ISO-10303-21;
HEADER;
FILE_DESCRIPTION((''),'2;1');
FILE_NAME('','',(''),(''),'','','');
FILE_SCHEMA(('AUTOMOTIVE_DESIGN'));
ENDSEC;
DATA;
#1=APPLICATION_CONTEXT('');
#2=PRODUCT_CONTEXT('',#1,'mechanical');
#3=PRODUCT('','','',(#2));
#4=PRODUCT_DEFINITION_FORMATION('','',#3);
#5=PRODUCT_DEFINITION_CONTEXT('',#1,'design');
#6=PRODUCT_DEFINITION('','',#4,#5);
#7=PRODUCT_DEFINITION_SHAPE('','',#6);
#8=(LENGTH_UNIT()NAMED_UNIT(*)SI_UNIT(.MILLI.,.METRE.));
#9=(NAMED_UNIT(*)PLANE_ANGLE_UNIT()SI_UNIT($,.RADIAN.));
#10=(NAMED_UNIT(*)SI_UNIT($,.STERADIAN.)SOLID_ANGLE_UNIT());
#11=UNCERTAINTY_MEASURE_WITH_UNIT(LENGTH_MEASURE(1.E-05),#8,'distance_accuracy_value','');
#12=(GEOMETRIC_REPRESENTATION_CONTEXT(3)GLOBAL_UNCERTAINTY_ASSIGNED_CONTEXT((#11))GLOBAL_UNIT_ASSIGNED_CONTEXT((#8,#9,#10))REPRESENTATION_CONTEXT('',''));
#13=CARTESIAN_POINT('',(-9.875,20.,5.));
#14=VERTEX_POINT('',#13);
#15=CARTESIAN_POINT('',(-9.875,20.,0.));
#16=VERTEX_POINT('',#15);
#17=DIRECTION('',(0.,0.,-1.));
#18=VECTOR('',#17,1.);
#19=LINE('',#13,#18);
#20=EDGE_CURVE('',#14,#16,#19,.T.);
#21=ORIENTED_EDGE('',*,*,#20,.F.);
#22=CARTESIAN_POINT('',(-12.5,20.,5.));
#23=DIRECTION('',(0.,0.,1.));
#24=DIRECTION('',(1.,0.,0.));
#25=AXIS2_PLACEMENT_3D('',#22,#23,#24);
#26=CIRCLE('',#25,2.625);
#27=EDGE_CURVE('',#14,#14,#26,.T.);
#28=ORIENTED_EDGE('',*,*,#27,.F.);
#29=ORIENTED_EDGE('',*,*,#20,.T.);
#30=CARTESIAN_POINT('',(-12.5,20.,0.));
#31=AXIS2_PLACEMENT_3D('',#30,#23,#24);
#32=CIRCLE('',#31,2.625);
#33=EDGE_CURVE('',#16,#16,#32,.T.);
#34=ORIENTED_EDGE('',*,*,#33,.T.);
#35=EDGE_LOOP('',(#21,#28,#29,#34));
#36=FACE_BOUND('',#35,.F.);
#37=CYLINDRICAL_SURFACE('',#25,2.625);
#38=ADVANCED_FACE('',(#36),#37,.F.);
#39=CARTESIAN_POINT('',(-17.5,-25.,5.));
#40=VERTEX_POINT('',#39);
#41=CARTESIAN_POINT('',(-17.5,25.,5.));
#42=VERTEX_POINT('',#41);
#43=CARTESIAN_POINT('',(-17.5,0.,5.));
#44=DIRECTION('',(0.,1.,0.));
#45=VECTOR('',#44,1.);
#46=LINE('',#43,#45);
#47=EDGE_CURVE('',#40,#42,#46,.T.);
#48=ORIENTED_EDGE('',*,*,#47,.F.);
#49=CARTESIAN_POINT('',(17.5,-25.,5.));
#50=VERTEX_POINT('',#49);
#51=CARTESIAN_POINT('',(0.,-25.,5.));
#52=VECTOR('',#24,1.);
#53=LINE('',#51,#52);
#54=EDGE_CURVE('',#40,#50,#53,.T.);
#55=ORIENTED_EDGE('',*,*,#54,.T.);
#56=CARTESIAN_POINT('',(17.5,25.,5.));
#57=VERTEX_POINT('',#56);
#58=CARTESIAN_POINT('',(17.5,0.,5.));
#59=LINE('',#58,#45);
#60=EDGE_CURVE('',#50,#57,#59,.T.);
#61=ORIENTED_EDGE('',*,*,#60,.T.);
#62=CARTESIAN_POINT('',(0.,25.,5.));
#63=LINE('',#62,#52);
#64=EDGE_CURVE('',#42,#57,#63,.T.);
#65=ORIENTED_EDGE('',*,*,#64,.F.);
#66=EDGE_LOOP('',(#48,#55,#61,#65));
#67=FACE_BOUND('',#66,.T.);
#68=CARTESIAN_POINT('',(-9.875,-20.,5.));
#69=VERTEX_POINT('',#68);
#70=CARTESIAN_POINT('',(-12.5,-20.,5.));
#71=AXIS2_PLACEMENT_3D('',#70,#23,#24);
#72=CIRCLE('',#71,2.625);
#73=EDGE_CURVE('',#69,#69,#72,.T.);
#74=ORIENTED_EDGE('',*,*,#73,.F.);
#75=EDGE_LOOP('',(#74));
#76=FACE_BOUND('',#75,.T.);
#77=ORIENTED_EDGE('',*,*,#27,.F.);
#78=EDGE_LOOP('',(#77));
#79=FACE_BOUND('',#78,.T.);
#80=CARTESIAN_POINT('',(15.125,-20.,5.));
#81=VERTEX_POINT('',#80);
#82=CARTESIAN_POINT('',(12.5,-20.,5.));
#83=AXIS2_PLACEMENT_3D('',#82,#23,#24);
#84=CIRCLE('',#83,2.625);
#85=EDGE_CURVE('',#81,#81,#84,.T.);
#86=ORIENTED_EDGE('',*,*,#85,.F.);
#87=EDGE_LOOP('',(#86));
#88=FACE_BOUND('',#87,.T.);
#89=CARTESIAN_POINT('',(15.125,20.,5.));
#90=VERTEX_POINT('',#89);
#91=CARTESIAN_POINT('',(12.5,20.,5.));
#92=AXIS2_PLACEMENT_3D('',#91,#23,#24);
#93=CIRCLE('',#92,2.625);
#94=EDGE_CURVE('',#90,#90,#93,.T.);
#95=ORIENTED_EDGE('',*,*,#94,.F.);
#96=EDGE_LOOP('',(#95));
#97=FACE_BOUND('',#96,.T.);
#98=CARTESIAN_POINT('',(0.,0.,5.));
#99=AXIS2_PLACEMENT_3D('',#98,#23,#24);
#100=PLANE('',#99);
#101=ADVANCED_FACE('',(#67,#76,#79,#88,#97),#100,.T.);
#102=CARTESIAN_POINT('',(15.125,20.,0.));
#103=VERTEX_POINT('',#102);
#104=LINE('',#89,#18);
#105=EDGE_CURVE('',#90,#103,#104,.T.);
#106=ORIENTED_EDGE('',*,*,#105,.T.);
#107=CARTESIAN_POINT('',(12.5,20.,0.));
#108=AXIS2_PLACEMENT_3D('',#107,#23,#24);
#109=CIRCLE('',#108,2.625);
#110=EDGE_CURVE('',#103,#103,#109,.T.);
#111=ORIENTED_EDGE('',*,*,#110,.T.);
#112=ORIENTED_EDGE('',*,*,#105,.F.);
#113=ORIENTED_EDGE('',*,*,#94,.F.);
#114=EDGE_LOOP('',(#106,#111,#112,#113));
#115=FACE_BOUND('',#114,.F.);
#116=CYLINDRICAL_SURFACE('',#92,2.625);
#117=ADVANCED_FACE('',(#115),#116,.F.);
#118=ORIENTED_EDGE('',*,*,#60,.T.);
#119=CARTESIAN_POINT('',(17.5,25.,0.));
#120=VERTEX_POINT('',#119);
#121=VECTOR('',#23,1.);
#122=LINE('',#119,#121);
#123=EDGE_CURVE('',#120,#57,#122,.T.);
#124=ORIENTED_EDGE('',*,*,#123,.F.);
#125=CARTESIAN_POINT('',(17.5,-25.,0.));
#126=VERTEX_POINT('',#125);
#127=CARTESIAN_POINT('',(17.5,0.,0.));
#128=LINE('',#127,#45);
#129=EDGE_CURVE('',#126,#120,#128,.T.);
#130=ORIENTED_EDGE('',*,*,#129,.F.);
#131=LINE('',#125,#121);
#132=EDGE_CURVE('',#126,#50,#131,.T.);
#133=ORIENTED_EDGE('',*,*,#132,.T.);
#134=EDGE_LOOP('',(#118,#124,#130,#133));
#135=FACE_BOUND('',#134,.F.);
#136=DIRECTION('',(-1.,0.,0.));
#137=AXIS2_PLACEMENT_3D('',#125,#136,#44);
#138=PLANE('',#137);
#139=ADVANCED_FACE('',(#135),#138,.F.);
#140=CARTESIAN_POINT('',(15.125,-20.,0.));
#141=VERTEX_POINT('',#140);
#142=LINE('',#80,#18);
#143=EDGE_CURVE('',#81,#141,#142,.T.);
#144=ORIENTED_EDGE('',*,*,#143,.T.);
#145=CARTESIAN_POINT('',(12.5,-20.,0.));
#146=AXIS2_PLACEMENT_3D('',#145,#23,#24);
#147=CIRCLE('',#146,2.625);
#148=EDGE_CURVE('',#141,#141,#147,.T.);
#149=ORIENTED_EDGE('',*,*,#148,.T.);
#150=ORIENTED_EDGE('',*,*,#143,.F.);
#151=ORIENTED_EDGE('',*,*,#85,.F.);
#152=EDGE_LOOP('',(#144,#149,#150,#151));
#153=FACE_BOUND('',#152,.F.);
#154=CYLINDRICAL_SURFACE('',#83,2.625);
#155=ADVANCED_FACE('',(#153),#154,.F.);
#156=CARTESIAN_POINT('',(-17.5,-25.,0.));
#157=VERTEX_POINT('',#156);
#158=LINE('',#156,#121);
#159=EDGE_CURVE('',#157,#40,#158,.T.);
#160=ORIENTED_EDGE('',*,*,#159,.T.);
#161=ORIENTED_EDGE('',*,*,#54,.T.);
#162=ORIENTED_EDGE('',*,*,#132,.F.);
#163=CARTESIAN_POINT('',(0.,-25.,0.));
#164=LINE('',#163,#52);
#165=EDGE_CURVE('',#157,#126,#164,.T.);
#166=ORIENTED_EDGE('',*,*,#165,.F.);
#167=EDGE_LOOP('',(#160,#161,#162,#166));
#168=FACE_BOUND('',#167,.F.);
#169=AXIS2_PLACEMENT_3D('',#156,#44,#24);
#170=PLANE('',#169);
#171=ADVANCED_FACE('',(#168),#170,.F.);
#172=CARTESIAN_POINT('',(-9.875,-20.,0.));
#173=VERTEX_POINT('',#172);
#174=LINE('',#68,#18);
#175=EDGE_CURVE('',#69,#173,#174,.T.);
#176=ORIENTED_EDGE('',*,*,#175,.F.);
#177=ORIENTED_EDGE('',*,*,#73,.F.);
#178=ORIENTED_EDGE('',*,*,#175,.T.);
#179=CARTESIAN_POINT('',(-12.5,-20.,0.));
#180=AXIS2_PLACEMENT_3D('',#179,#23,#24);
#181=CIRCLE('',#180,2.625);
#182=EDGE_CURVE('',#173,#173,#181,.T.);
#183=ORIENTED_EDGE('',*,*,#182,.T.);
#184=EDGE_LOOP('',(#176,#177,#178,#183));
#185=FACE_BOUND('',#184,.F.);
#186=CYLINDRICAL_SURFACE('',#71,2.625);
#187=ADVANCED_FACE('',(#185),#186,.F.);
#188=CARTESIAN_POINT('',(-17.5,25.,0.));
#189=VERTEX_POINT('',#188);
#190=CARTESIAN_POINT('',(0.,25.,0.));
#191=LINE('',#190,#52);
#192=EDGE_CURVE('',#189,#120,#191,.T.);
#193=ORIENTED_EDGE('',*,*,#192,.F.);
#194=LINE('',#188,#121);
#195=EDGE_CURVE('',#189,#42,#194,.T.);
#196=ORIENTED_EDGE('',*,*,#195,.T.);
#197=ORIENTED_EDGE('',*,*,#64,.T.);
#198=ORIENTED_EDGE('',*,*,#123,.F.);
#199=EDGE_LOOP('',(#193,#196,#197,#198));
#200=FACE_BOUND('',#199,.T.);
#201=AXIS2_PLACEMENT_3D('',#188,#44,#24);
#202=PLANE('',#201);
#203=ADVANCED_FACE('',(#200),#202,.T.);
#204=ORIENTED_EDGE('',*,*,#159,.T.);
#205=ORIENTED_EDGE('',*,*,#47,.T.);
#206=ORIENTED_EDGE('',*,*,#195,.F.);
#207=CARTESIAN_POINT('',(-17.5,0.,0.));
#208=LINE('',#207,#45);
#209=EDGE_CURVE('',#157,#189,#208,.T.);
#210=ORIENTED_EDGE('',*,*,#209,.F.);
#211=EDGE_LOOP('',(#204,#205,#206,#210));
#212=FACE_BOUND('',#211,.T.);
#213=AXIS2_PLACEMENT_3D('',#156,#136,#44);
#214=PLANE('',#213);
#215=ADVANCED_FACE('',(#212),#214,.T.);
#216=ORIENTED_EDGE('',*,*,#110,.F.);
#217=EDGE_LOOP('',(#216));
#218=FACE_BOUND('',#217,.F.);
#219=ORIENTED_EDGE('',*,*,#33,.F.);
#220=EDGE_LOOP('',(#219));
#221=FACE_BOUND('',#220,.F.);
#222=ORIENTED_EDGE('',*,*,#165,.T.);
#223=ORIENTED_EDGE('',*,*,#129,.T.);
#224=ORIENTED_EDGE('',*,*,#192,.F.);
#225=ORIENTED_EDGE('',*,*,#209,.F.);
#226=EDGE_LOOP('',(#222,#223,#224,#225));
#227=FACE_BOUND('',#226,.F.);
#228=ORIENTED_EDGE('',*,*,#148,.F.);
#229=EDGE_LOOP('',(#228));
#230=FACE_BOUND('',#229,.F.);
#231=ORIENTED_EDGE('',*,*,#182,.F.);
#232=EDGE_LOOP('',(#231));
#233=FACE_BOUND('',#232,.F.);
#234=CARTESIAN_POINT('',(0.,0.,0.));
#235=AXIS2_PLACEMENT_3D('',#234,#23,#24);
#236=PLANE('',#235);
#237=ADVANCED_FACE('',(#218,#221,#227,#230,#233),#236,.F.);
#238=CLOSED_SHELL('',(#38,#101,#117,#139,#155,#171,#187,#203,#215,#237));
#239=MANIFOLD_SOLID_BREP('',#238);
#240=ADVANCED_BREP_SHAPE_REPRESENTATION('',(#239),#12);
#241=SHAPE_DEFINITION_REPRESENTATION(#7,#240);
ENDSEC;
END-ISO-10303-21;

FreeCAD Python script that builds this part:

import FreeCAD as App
import Part
import Sketcher
from FreeCAD import Vector
Q = App.Units.Quantity

doc = App.newDocument("Part")
body = doc.addObject("PartDesign::Body", "Body")

# Sketch on XY plane
sketch1 = body.newObject("Sketcher::SketchObject", "Sketch")
sketch1.AttachmentSupport = (doc.getObject("XY_Plane"), [""])
sketch1.MapMode = "FlatFace"
sketch1.addGeometry(Part.LineSegment(Vector(-18, 25, 0), Vector(-18, -25, 0)), False)
sketch1.addGeometry(Part.LineSegment(Vector(-18, -25, 0), Vector(18, -25, 0)), False)
sketch1.addGeometry(Part.LineSegment(Vector(18, -25, 0), Vector(18, 25, 0)), False)
sketch1.addGeometry(Part.LineSegment(Vector(18, 25, 0), Vector(-18, 25, 0)), False)
sketch1.addConstraint(Sketcher.Constraint("Coincident", 0, 2, 1, 1))
sketch1.addConstraint(Sketcher.Constraint("Coincident", 1, 2, 2, 1))
sketch1.addConstraint(Sketcher.Constraint("Coincident", 2, 2, 3, 1))
sketch1.addConstraint(Sketcher.Constraint("Coincident", 3, 2, 0, 1))
sketch1.addConstraint(Sketcher.Constraint("Vertical", 0))
sketch1.addConstraint(Sketcher.Constraint("Horizontal", 1))
sketch1.addConstraint(Sketcher.Constraint("Vertical", 2))
sketch1.addConstraint(Sketcher.Constraint("Horizontal", 3))
sketch1.addConstraint(Sketcher.Constraint("Symmetric", 0, 2, 2, 2, -1, 1))
sketch1.addConstraint(Sketcher.Constraint("DistanceX", 1, 1, 1, 2, Q("35 mm")))
sketch1.addConstraint(Sketcher.Constraint("DistanceY", 0, 2, 0, 1, Q("50 mm")))
pad1 = body.newObject("PartDesign::Pad", "Pad")
pad1.Profile = sketch1
pad1.Length = 5

# Sketch on XY plane
sketch2 = body.newObject("Sketcher::SketchObject", "Sketch001")
sketch2.AttachmentSupport = (doc.getObject("XY_Plane"), [""])
sketch2.MapMode = "FlatFace"
sketch2.AttachmentOffset = App.Placement(Vector(0, 0, 5), App.Rotation())
sketch2.addGeometry(Part.Circle(Vector(-12.5, 20, 0), Vector(0, 0, 1), 2.6), False)
sketch2.addGeometry(Part.Circle(Vector(-12.5, -20, 0), Vector(0, 0, 1), 2.6), False)
sketch2.addGeometry(Part.Circle(Vector(12.5, -20, 0), Vector(0, 0, 1), 2.6), False)
sketch2.addGeometry(Part.Circle(Vector(12.5, 20, 0), Vector(0, 0, 1), 2.6), False)
sketch2.addConstraint(Sketcher.Constraint("Equal", 0, 1))
sketch2.addConstraint(Sketcher.Constraint("Equal", 1, 2))
sketch2.addConstraint(Sketcher.Constraint("Equal", 2, 3))
sketch2.addConstraint(Sketcher.Constraint("Symmetric", 0, 3, 2, 3, -1, 1))
sketch2.addConstraint(Sketcher.Constraint("Symmetric", 1, 3, 3, 3, -1, 1))
sketch2.addConstraint(Sketcher.Constraint("Symmetric", 1, 3, 2, 3, -2))
sketch2.addConstraint(Sketcher.Constraint("Diameter", 0, Q("5.25 mm")))
sketch2.addConstraint(Sketcher.Constraint("DistanceY", -1, 1, 0, 3, Q("20 mm")))
sketch2.addConstraint(Sketcher.Constraint("DistanceX", 1, 3, 2, 3, Q("25 mm")))
pocket1 = body.newObject("PartDesign::Pocket", "Pocket")
pocket1.Profile = sketch2
pocket1.Length = 5

doc.recompute()
